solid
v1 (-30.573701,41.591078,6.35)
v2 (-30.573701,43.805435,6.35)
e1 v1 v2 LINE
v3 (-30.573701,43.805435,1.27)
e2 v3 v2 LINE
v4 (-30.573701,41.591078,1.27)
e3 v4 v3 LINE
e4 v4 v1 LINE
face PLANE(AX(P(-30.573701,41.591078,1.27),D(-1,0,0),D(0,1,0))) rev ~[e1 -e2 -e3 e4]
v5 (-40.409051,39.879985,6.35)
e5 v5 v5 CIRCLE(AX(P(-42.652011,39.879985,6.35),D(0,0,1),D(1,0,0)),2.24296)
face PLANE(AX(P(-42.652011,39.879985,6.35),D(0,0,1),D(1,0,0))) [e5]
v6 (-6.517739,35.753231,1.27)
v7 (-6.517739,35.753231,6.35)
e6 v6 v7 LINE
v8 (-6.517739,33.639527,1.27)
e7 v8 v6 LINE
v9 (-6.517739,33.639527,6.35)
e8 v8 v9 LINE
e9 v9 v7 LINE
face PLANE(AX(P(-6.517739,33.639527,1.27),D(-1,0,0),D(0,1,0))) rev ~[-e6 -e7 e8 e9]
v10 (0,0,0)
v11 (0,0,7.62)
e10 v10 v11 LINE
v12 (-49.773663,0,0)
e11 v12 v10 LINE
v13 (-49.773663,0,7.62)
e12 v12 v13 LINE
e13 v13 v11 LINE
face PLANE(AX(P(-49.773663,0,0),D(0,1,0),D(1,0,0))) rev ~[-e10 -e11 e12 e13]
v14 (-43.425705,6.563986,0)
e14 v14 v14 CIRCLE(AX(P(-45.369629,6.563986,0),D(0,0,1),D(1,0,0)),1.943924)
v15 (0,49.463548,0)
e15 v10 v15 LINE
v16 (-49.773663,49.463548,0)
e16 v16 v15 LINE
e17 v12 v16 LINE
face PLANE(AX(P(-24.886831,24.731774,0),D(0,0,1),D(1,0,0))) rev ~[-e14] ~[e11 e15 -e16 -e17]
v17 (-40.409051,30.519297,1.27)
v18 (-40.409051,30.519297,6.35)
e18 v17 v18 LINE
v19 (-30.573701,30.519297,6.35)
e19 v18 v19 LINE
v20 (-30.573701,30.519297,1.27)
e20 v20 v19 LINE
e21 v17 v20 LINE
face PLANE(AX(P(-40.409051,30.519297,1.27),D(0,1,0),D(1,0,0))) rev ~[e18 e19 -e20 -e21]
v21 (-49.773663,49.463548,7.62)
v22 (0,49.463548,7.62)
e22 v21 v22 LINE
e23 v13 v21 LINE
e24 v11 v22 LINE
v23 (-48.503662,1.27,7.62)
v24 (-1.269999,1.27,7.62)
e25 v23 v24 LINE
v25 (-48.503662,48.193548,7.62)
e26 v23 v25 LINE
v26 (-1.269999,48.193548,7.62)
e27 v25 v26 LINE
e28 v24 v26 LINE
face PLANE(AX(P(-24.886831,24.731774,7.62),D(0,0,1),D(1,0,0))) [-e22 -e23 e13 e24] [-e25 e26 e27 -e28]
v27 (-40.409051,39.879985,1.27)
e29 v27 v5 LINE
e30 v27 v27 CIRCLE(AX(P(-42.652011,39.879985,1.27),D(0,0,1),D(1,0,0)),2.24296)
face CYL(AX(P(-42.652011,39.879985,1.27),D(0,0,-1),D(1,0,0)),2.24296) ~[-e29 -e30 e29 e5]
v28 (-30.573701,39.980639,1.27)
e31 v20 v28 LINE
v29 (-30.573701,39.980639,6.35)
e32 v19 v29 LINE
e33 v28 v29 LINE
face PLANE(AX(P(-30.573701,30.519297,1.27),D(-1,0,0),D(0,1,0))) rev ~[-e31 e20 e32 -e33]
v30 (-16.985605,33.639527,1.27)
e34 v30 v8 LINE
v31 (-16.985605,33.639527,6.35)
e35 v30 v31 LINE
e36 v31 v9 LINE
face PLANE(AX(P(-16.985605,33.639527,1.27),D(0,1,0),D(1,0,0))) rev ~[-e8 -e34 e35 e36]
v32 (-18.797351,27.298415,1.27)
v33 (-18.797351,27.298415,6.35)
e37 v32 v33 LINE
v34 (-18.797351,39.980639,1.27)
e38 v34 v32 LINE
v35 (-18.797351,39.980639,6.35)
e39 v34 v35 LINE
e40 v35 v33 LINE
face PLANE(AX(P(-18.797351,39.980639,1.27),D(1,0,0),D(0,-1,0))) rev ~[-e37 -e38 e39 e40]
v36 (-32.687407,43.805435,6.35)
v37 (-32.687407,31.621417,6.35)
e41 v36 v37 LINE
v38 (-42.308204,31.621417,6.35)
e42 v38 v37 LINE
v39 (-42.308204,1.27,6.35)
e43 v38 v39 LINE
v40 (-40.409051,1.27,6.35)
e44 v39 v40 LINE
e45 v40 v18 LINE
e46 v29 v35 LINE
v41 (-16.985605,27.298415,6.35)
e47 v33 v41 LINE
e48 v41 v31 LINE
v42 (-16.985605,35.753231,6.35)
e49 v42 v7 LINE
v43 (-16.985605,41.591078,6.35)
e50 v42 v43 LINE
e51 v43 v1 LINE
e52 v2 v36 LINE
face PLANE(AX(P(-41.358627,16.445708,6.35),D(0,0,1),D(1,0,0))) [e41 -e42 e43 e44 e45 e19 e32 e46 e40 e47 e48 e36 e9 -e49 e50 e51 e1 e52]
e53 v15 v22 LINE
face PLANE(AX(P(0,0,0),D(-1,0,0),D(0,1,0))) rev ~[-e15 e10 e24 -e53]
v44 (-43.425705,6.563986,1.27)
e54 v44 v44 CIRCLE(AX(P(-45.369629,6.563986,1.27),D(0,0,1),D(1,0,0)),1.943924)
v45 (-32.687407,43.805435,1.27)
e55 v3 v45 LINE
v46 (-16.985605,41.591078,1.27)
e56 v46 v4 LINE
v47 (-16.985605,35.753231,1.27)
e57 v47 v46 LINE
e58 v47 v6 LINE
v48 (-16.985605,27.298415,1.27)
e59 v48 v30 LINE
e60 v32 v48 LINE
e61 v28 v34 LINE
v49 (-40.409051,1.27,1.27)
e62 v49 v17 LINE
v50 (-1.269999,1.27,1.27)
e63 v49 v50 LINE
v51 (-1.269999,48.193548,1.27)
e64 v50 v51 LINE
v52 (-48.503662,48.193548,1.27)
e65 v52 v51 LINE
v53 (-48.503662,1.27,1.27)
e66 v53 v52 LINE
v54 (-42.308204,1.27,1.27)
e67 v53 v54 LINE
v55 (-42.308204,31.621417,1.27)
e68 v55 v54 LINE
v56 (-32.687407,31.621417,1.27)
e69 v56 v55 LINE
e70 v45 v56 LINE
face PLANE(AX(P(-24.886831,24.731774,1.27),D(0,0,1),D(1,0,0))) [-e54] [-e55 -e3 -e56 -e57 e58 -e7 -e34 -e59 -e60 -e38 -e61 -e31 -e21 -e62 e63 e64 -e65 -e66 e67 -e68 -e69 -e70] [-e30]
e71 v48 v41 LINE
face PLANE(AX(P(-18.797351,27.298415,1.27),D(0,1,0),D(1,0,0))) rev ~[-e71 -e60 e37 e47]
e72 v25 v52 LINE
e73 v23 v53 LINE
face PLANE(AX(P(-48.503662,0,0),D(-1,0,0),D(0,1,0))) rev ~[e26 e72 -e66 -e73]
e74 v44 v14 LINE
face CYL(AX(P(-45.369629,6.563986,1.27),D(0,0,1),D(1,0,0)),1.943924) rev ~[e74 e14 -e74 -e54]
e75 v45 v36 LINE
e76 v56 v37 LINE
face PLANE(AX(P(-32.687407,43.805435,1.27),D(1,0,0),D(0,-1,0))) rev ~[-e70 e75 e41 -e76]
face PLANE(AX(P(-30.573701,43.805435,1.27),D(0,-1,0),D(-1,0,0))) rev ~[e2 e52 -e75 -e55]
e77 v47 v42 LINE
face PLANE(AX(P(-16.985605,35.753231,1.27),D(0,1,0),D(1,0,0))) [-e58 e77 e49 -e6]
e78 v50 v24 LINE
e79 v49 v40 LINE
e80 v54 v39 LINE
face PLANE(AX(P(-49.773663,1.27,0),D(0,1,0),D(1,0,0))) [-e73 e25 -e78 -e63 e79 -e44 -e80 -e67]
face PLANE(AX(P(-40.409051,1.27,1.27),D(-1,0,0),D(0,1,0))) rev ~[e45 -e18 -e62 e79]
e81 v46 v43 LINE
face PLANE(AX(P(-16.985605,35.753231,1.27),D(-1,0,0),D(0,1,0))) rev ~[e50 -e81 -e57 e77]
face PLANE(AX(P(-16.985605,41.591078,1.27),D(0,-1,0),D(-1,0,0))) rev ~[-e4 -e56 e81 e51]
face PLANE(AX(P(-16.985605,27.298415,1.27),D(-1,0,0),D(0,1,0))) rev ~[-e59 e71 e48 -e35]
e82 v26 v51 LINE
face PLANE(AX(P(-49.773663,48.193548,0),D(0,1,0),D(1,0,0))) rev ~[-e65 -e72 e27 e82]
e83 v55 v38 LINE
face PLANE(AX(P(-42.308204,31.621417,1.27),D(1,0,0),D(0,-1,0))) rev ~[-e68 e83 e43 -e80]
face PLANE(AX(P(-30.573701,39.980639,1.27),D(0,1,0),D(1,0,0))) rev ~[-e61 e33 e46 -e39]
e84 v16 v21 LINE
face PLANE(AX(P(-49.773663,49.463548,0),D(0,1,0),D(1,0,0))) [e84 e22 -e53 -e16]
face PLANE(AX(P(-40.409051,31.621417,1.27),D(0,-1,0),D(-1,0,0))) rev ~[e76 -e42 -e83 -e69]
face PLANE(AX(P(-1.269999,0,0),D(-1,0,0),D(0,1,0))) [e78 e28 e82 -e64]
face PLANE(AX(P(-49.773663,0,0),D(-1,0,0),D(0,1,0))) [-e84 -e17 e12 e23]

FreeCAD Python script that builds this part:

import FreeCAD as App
import Part
import Sketcher
from FreeCAD import Vector
Q = App.Units.Quantity


def faces_at(feature, points):
    """Names of the faces that lie closest to the given points."""
    faces = feature.Shape.Faces
    near = lambda p: min(range(len(faces)), key=lambda i: faces[i].distToShape(Part.Vertex(*p))[0])
    return sorted({f"Face{near(p) + 1}" for p in points})


def add_polygon(sketch, points):
    """Adds a closed chain of lines whose ends are joined by coincident constraints."""
    first, n = sketch.GeometryCount, len(points)
    for a, b in zip(points, points[1:] + points[:1]):
        sketch.addGeometry(Part.LineSegment(App.Vector(*a, 0), App.Vector(*b, 0)), False)
    for i in range(n):
        sketch.addConstraint(Sketcher.Constraint("Coincident", first + i, 2, first + (i + 1) % n, 1))

doc = App.newDocument("Part")
body = doc.addObject("PartDesign::Body", "Body")

sketch1 = doc.addObject("Sketcher::SketchObject", "Sketch")
body.addObject(sketch1)
sketch1.AttachmentSupport = (doc.XY_Plane, [""])
sketch1.MapMode = "FlatFace"
add_polygon(sketch1, [(-50, 49), (-50, 0), (0, 0), (0, 49)])
sketch1.addConstraint(Sketcher.Constraint("Vertical", 0))
sketch1.addConstraint(Sketcher.Constraint("Horizontal", 1))
sketch1.addConstraint(Sketcher.Constraint("Vertical", 2))
sketch1.addConstraint(Sketcher.Constraint("Horizontal", 3))
sketch1.addConstraint(Sketcher.Constraint("Coincident", 1, 2, -1, 1))
sketch1.addConstraint(Sketcher.Constraint("DistanceY", 0, 2, 0, 1, 49.463548))
sketch1.addConstraint(Sketcher.Constraint("DistanceX", 1, 1, 1, 2, 49.773663))
pad1 = doc.addObject("PartDesign::Pad", "Pad")
body.addObject(pad1)
pad1.Profile = sketch1
pad1.Length = Q("0.3 in")
doc.recompute()

thickness = doc.addObject("PartDesign::Thickness", "Thickness")
body.addObject(thickness)
thickness.Base = (pad1, faces_at(pad1, [(-24.887, 24.732, 7.62)]))
thickness.Value = Q("0.05 in")
thickness.Reversed = True
thickness.Join = "Arc"

sketch2 = doc.addObject("Sketcher::SketchObject", "Sketch001")
body.addObject(sketch2)
sketch2.AttachmentSupport = (doc.XY_Plane, [""])
sketch2.MapMode = "FlatFace"
sketch2.AttachmentOffset = App.Placement(Vector(0, 0, 0.05 * 25.4), App.Rotation())
add_polygon(sketch2, [(-42.3, 31.6), (-42.3, 1.3), (-40.4, 1.3), (-40.4, 31.6)])
sketch2.addConstraint(Sketcher.Constraint("Vertical", 0))
sketch2.addConstraint(Sketcher.Constraint("Horizontal", 1))
sketch2.addConstraint(Sketcher.Constraint("Vertical", 2))
sketch2.addConstraint(Sketcher.Constraint("Horizontal", 3))
sketch2.addConstraint(Sketcher.Constraint("DistanceY", -1, 1, 0, 2, Q("0.05 in")))
sketch2.addConstraint(Sketcher.Constraint("DistanceX", 1, 1, 1, 2, 1.899153))
sketch2.addConstraint(Sketcher.Constraint("DistanceY", 0, 2, 0, 1, 30.351417))
sketch2.addConstraint(Sketcher.Constraint("DistanceX", 1, 2, -1, 1, 40.409051))
pad2 = doc.addObject("PartDesign::Pad", "Pad001")
body.addObject(pad2)
pad2.Profile = sketch2
pad2.Length = Q("0.2 in")

sketch3 = doc.addObject("Sketcher::SketchObject", "Sketch002")
body.addObject(sketch3)
sketch3.AttachmentSupport = (doc.XY_Plane, [""])
sketch3.MapMode = "FlatFace"
sketch3.AttachmentOffset = App.Placement(Vector(0, 0, 0.05 * 25.4), App.Rotation())
add_polygon(sketch3, [(-42.3, 31.6), (-42.3, 1.3), (-40.4, 1.3), (-40.4, 30.5), (-30.6, 30.5), (-30.6, 40), (-18.8, 40), (-18.8, 27.3), (-17, 27.3), (-17, 33.6), (-6.5, 33.6), (-6.5, 35.8), (-17, 35.8), (-17, 41.6), (-30.6, 41.6), (-30.6, 43.8), (-32.7, 43.8), (-32.7, 31.6)])
sketch3.addGeometry(Part.Circle(Vector(-42.7, 39.9, 0), Vector(0, 0, 1), 2.2), False)
sketch3.addConstraint(Sketcher.Constraint("Vertical", 0))
sketch3.addConstraint(Sketcher.Constraint("Horizontal", 1))
sketch3.addConstraint(Sketcher.Constraint("Vertical", 2))
sketch3.addConstraint(Sketcher.Constraint("Horizontal", 3))
sketch3.addConstraint(Sketcher.Constraint("Vertical", 4))
sketch3.addConstraint(Sketcher.Constraint("Horizontal", 5))
sketch3.addConstraint(Sketcher.Constraint("Vertical", 6))
sketch3.addConstraint(Sketcher.Constraint("Horizontal", 7))
sketch3.addConstraint(Sketcher.Constraint("Vertical", 8))
sketch3.addConstraint(Sketcher.Constraint("Horizontal", 9))
sketch3.addConstraint(Sketcher.Constraint("Vertical", 10))
sketch3.addConstraint(Sketcher.Constraint("Horizontal", 11))
sketch3.addConstraint(Sketcher.Constraint("Vertical", 12))
sketch3.addConstraint(Sketcher.Constraint("Horizontal", 13))
sketch3.addConstraint(Sketcher.Constraint("Vertical", 14))
sketch3.addConstraint(Sketcher.Constraint("Horizontal", 15))
sketch3.addConstraint(Sketcher.Constraint("Vertical", 16))
sketch3.addConstraint(Sketcher.Constraint("Horizontal", 17))
sketch3.addConstraint(Sketcher.Constraint("Vertical", 8, 2, 11, 2))
sketch3.addConstraint(Sketcher.Constraint("Vertical", 4, 2, 13, 2))
sketch3.addConstraint(Sketcher.Constraint("DistanceY", -1, 1, 0, 2, Q("0.05 in")))
sketch3.addConstraint(Sketcher.Constraint("Diameter", 18, 4.48592))
sketch3.addConstraint(Sketcher.Constraint("DistanceY", 6, 2, 6, 1, Q("0.4993002 in")))
sketch3.addConstraint(Sketcher.Constraint("DistanceX", 3, 1, 3, 2, 9.83535))
sketch3.addConstraint(Sketcher.Constraint("DistanceX", 5, 1, 5, 2, 11.77635))
sketch3.addConstraint(Sketcher.Constraint("DistanceY", 4, 1, 4, 2, 9.461342))
sketch3.addConstraint(Sketcher.Constraint("DistanceY", 16, 2, 16, 1, 12.184018))
sketch3.addConstraint(Sketcher.Constraint("DistanceX", 3, 2, -1, 1, 30.573701))
sketch3.addConstraint(Sketcher.Constraint("DistanceX", 1, 1, 1, 2, 1.899153))
sketch3.addConstraint(Sketcher.Constraint("DistanceX", 7, 1, 7, 2, 1.811746))
sketch3.addConstraint(Sketcher.Constraint("DistanceX", 9, 1, 9, 2, 10.467866))
sketch3.addConstraint(Sketcher.Constraint("DistanceX", 15, 2, 15, 1, 2.113706))
sketch3.addConstraint(Sketcher.Constraint("DistanceY", 0, 2, 0, 1, 30.351417))
sketch3.addConstraint(Sketcher.Constraint("DistanceY", 2, 1, 2, 2, 29.249297))
sketch3.addConstraint(Sketcher.Constraint("DistanceY", 8, 1, 8, 2, 6.341112))
sketch3.addConstraint(Sketcher.Constraint("DistanceY", 10, 1, 10, 2, 2.113704))
sketch3.addConstraint(Sketcher.Constraint("DistanceY", 12, 1, 12, 2, 5.837847))
sketch3.addConstraint(Sketcher.Constraint("DistanceX", 18, 3, -1, 1, 42.652011))
sketch3.addConstraint(Sketcher.Constraint("DistanceY", 6, 2, 18, 3, 12.58157))
pad3 = doc.addObject("PartDesign::Pad", "Pad002")
body.addObject(pad3)
pad3.Profile = sketch3
pad3.Length = Q("0.2 in")

sketch4 = doc.addObject("Sketcher::SketchObject", "Sketch003")
body.addObject(sketch4)
sketch4.AttachmentSupport = (doc.XY_Plane, [""])
sketch4.MapMode = "FlatFace"
sketch4.AttachmentOffset = App.Placement(Vector(0, 0, 0.05 * 25.4), App.Rotation())
sketch4.addGeometry(Part.Circle(Vector(-45.4, 6.6, 0), Vector(0, 0, 1), 1.9), False)
sketch4.addConstraint(Sketcher.Constraint("Diameter", 0, 3.887848))
sketch4.addConstraint(Sketcher.Constraint("DistanceX", 0, 3, -1, 1, 45.369629))
sketch4.addConstraint(Sketcher.Constraint("DistanceY", -1, 1, 0, 3, 6.563986))
pocket1 = doc.addObject("PartDesign::Pocket", "Pocket")
body.addObject(pocket1)
pocket1.Profile = sketch4
pocket1.Length = Q("0.2 in")

doc.recompute()
